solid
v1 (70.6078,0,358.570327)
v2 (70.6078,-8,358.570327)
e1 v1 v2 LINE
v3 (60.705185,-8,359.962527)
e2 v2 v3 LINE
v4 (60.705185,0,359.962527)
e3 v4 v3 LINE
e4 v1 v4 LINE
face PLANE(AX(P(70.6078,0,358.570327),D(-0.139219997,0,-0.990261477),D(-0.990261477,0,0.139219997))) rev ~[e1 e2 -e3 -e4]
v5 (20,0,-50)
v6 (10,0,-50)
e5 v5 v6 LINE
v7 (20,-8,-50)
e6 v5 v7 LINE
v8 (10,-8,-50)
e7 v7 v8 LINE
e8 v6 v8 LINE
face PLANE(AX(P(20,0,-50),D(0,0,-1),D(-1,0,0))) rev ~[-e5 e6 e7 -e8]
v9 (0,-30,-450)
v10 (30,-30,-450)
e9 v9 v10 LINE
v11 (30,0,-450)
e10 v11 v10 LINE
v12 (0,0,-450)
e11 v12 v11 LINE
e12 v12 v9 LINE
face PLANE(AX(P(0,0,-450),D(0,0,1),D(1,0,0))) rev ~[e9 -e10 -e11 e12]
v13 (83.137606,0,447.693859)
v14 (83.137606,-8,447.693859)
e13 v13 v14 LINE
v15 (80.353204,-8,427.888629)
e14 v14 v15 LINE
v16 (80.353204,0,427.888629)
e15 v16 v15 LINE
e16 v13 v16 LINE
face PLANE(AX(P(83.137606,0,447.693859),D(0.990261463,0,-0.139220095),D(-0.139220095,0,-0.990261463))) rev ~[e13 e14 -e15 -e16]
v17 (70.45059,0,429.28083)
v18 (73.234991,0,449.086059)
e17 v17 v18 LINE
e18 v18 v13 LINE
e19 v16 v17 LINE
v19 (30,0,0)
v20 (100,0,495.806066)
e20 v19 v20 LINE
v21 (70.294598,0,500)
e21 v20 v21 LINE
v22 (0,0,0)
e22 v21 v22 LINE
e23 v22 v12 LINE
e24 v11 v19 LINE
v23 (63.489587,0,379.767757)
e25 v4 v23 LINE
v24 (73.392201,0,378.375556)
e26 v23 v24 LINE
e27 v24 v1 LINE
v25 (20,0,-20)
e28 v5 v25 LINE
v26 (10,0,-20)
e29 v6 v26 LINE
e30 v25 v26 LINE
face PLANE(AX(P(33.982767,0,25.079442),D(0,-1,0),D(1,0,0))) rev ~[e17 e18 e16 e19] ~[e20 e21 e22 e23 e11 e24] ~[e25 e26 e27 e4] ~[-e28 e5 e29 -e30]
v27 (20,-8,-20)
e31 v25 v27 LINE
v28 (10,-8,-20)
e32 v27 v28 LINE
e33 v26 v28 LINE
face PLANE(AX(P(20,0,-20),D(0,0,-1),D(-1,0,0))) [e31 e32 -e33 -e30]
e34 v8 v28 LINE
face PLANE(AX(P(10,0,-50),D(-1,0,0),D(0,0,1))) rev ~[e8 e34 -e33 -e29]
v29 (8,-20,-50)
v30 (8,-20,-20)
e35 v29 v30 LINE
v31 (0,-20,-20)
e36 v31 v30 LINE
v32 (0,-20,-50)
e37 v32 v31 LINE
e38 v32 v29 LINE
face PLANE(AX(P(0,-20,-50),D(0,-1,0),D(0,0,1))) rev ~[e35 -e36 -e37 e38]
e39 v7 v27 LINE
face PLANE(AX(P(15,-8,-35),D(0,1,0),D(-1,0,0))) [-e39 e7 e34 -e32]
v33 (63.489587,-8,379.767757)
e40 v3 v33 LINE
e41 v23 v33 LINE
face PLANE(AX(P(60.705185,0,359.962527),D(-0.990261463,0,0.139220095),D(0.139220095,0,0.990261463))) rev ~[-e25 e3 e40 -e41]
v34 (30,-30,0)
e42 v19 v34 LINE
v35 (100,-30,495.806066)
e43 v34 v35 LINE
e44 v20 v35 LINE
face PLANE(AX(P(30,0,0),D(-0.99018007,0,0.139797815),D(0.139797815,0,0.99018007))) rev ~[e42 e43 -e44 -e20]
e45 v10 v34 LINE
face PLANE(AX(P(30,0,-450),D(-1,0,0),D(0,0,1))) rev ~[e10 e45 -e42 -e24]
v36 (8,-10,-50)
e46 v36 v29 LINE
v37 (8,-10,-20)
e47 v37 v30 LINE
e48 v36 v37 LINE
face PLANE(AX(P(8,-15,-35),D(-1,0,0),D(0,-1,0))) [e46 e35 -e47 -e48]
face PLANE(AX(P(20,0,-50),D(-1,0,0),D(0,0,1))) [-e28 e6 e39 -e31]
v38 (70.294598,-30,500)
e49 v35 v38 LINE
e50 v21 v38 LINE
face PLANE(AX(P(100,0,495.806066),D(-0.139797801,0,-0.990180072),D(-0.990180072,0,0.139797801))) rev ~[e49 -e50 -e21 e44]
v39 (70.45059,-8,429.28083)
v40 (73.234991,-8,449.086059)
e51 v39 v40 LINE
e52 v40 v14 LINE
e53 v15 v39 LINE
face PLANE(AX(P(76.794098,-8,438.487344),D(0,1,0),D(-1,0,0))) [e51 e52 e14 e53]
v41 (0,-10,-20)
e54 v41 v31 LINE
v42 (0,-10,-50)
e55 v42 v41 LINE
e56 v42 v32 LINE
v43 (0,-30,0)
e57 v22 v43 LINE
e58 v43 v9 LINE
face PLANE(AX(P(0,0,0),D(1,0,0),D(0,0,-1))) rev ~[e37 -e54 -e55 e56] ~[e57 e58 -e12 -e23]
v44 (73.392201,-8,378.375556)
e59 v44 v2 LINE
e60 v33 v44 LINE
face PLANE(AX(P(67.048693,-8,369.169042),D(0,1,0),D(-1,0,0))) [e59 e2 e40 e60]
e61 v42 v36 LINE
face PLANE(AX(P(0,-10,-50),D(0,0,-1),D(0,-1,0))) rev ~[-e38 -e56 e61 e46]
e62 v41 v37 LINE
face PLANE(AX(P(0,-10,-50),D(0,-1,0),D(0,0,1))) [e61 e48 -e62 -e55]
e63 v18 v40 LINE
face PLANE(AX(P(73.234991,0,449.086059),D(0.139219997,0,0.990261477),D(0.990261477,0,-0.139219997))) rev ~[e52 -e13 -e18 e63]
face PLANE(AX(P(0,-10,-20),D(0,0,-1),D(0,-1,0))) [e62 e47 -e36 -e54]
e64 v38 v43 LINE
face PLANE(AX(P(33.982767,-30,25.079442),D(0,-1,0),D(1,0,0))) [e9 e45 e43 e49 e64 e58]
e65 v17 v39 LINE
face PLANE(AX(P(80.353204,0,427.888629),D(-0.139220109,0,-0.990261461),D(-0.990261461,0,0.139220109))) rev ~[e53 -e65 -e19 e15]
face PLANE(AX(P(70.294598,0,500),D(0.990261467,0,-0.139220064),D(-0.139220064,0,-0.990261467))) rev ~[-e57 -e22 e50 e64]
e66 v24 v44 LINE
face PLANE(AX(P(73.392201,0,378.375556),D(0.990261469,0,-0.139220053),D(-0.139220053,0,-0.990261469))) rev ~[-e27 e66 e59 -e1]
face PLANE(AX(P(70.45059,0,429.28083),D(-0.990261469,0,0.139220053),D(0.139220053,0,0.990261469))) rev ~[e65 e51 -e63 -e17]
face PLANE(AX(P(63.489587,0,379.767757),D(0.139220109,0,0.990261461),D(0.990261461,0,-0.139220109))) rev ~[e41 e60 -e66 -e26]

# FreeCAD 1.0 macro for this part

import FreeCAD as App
import Part
import Sketcher
Q = App.Units.Quantity

doc = App.newDocument("Part")
body = doc.addObject("PartDesign::Body", "Body")

# Sketch on XZ plane
sketch1 = body.newObject("Sketcher::SketchObject", "Sketch")
sketch1.AttachmentSupport = (doc.getObject("XZ_Plane"), [""])
sketch1.MapMode = "FlatFace"
sketch1.addGeometry(Part.LineSegment(App.Vector(70, 500, 0), App.Vector(0, 0, 0)), False)
sketch1.addGeometry(Part.LineSegment(App.Vector(0, 0, 0), App.Vector(0, -450, 0)), False)
sketch1.addGeometry(Part.LineSegment(App.Vector(0, -450, 0), App.Vector(30, -450, 0)), False)
sketch1.addGeometry(Part.LineSegment(App.Vector(30, -450, 0), App.Vector(30, 0, 0)), False)
sketch1.addGeometry(Part.LineSegment(App.Vector(30, 0, 0), App.Vector(100, 496, 0)), False)
sketch1.addGeometry(Part.LineSegment(App.Vector(100, 496, 0), App.Vector(70, 500, 0)), False)
sketch1.addConstraint(Sketcher.Constraint("Coincident", 0, 2, 1, 1))
sketch1.addConstraint(Sketcher.Constraint("Coincident", 1, 2, 2, 1))
sketch1.addConstraint(Sketcher.Constraint("Coincident", 2, 2, 3, 1))
sketch1.addConstraint(Sketcher.Constraint("Coincident", 3, 2, 4, 1))
sketch1.addConstraint(Sketcher.Constraint("Coincident", 4, 2, 5, 1))
sketch1.addConstraint(Sketcher.Constraint("Coincident", 5, 2, 0, 1))
sketch1.addConstraint(Sketcher.Constraint("Vertical", 1))
sketch1.addConstraint(Sketcher.Constraint("Horizontal", 2))
sketch1.addConstraint(Sketcher.Constraint("Vertical", 3))
sketch1.addConstraint(Sketcher.Constraint("Coincident", 0, 2, -1, 1))
sketch1.addConstraint(Sketcher.Constraint("PointOnObject", 3, 2, -1))
sketch1.addConstraint(Sketcher.Constraint("Perpendicular", 4, 5))
sketch1.addConstraint(Sketcher.Constraint("DistanceX", 2, 1, 2, 2, Q("30 mm")))
sketch1.addConstraint(Sketcher.Constraint("DistanceY", 1, 2, 1, 1, Q("450 mm")))
sketch1.addConstraint(Sketcher.Constraint("Distance", 5, Q("30 mm")))
sketch1.addConstraint(Sketcher.Constraint("DistanceX", -1, 1, 4, 2, Q("100 mm")))
sketch1.addConstraint(Sketcher.Constraint("DistanceY", -1, 1, 5, 2, Q("500 mm")))
pad1 = body.newObject("PartDesign::Pad", "Pad")
pad1.Profile = sketch1
pad1.Length = 30

# Sketch on XZ plane
sketch2 = body.newObject("Sketcher::SketchObject", "Sketch001")
sketch2.AttachmentSupport = (doc.getObject("XZ_Plane"), [""])
sketch2.MapMode = "FlatFace"
sketch2.addGeometry(Part.LineSegment(App.Vector(73, 449, 0), App.Vector(83, 448, 0)), False)
sketch2.addGeometry(Part.LineSegment(App.Vector(83, 448, 0), App.Vector(80, 428, 0)), False)
sketch2.addGeometry(Part.LineSegment(App.Vector(80, 428, 0), App.Vector(70, 429, 0)), False)
sketch2.addGeometry(Part.LineSegment(App.Vector(70, 429, 0), App.Vector(73, 449, 0)), False)
sketch2.addGeometry(Part.LineSegment(App.Vector(63, 380, 0), App.Vector(73, 378, 0)), False)
sketch2.addGeometry(Part.LineSegment(App.Vector(73, 378, 0), App.Vector(71, 359, 0)), False)
sketch2.addGeometry(Part.LineSegment(App.Vector(71, 359, 0), App.Vector(61, 360, 0)), False)
sketch2.addGeometry(Part.LineSegment(App.Vector(61, 360, 0), App.Vector(63, 380, 0)), False)
sketch2.addConstraint(Sketcher.Constraint("Coincident", 0, 2, 1, 1))
sketch2.addConstraint(Sketcher.Constraint("Coincident", 1, 2, 2, 1))
sketch2.addConstraint(Sketcher.Constraint("Coincident", 2, 2, 3, 1))
sketch2.addConstraint(Sketcher.Constraint("Coincident", 3, 2, 0, 1))
sketch2.addConstraint(Sketcher.Constraint("Coincident", 4, 2, 5, 1))
sketch2.addConstraint(Sketcher.Constraint("Coincident", 5, 2, 6, 1))
sketch2.addConstraint(Sketcher.Constraint("Coincident", 6, 2, 7, 1))
sketch2.addConstraint(Sketcher.Constraint("Coincident", 7, 2, 4, 1))
sketch2.addConstraint(Sketcher.Constraint("Perpendicular", 0, 1))
sketch2.addConstraint(Sketcher.Constraint("Perpendicular", 1, 2))
sketch2.addConstraint(Sketcher.Constraint("Perpendicular", 2, 3))
sketch2.addConstraint(Sketcher.Constraint("Perpendicular", 3, 4))
sketch2.addConstraint(Sketcher.Constraint("Perpendicular", 4, 5))
sketch2.addConstraint(Sketcher.Constraint("Perpendicular", 5, 6))
sketch2.addConstraint(Sketcher.Constraint("Perpendicular", 6, 7))
sketch2.addConstraint(Sketcher.Constraint("Equal", 2, 4))
sketch2.addConstraint(Sketcher.Constraint("Equal", 3, 5))
sketch2.addConstraint(Sketcher.Constraint("Distance", 0, Q("10 mm")))
sketch2.addConstraint(Sketcher.Constraint("Distance", 1, Q("20.000001 mm")))
sketch2.addConstraint(Sketcher.Constraint("DistanceX", -1, 1, 4, 2, Q("73.392201 mm")))
sketch2.addConstraint(Sketcher.Constraint("DistanceX", -1, 1, 5, 2, Q("70.6078 mm")))
sketch2.addConstraint(Sketcher.Constraint("DistanceY", 5, 2, 1, 2, Q("69.318302 mm")))
sketch2.addConstraint(Sketcher.Constraint("DistanceY", -1, 1, 0, 2, Q("447.693859 mm")))
sketch2.addConstraint(Sketcher.Constraint("DistanceX", -1, 1, 2, 2, Q("70.45059 mm")))
pocket1 = body.newObject("PartDesign::Pocket", "Pocket")
pocket1.Profile = sketch2
pocket1.Length = 8
pocket1.Reversed = True

# Sketch on XZ plane
sketch3 = body.newObject("Sketcher::SketchObject", "Sketch002")
sketch3.AttachmentSupport = (doc.getObject("XZ_Plane"), [""])
sketch3.MapMode = "FlatFace"
sketch3.addGeometry(Part.LineSegment(App.Vector(20, -20, 0), App.Vector(20, -50, 0)), False)
sketch3.addGeometry(Part.LineSegment(App.Vector(20, -50, 0), App.Vector(10, -50, 0)), False)
sketch3.addGeometry(Part.LineSegment(App.Vector(10, -50, 0), App.Vector(10, -20, 0)), False)
sketch3.addGeometry(Part.LineSegment(App.Vector(10, -20, 0), App.Vector(20, -20, 0)), False)
sketch3.addConstraint(Sketcher.Constraint("Coincident", 0, 2, 1, 1))
sketch3.addConstraint(Sketcher.Constraint("Coincident", 1, 2, 2, 1))
sketch3.addConstraint(Sketcher.Constraint("Coincident", 2, 2, 3, 1))
sketch3.addConstraint(Sketcher.Constraint("Coincident", 3, 2, 0, 1))
sketch3.addConstraint(Sketcher.Constraint("Vertical", 0))
sketch3.addConstraint(Sketcher.Constraint("Horizontal", 1))
sketch3.addConstraint(Sketcher.Constraint("Vertical", 2))
sketch3.addConstraint(Sketcher.Constraint("Horizontal", 3))
sketch3.addConstraint(Sketcher.Constraint("DistanceX", 1, 2, 1, 1, Q("10 mm")))
sketch3.addConstraint(Sketcher.Constraint("DistanceY", 0, 2, 0, 1, Q("30 mm")))
sketch3.addConstraint(Sketcher.Constraint("DistanceX", -1, 1, 0, 2, Q("20 mm")))
sketch3.addConstraint(Sketcher.Constraint("DistanceY", 0, 2, -1, 1, Q("50 mm")))
pocket2 = body.newObject("PartDesign::Pocket", "Pocket001")
pocket2.Profile = sketch3
pocket2.Length = 8
pocket2.Reversed = True

# Sketch on YZ plane
sketch4 = body.newObject("Sketcher::SketchObject", "Sketch003")
sketch4.AttachmentSupport = (doc.getObject("YZ_Plane"), [""])
sketch4.MapMode = "FlatFace"
sketch4.addGeometry(Part.LineSegment(App.Vector(-10, -20, 0), App.Vector(-10, -50, 0)), False)
sketch4.addGeometry(Part.LineSegment(App.Vector(-10, -50, 0), App.Vector(-20, -50, 0)), False)
sketch4.addGeometry(Part.LineSegment(App.Vector(-20, -50, 0), App.Vector(-20, -20, 0)), False)
sketch4.addGeometry(Part.LineSegment(App.Vector(-20, -20, 0), App.Vector(-10, -20, 0)), False)
sketch4.addConstraint(Sketcher.Constraint("Coincident", 0, 2, 1, 1))
sketch4.addConstraint(Sketcher.Constraint("Coincident", 1, 2, 2, 1))
sketch4.addConstraint(Sketcher.Constraint("Coincident", 2, 2, 3, 1))
sketch4.addConstraint(Sketcher.Constraint("Coincident", 3, 2, 0, 1))
sketch4.addConstraint(Sketcher.Constraint("Vertical", 0))
sketch4.addConstraint(Sketcher.Constraint("Horizontal", 1))
sketch4.addConstraint(Sketcher.Constraint("Vertical", 2))
sketch4.addConstraint(Sketcher.Constraint("Horizontal", 3))
sketch4.addConstraint(Sketcher.Constraint("DistanceX", 1, 2, 1, 1, Q("10 mm")))
sketch4.addConstraint(Sketcher.Constraint("DistanceY", 0, 2, 0, 1, Q("30 mm")))
sketch4.addConstraint(Sketcher.Constraint("DistanceX", 0, 2, -1, 1, Q("10 mm")))
sketch4.addConstraint(Sketcher.Constraint("DistanceY", 0, 2, -1, 1, Q("50 mm")))
pocket3 = body.newObject("PartDesign::Pocket", "Pocket002")
pocket3.Profile = sketch4
pocket3.Length = 8
pocket3.Reversed = True

doc.recompute()
